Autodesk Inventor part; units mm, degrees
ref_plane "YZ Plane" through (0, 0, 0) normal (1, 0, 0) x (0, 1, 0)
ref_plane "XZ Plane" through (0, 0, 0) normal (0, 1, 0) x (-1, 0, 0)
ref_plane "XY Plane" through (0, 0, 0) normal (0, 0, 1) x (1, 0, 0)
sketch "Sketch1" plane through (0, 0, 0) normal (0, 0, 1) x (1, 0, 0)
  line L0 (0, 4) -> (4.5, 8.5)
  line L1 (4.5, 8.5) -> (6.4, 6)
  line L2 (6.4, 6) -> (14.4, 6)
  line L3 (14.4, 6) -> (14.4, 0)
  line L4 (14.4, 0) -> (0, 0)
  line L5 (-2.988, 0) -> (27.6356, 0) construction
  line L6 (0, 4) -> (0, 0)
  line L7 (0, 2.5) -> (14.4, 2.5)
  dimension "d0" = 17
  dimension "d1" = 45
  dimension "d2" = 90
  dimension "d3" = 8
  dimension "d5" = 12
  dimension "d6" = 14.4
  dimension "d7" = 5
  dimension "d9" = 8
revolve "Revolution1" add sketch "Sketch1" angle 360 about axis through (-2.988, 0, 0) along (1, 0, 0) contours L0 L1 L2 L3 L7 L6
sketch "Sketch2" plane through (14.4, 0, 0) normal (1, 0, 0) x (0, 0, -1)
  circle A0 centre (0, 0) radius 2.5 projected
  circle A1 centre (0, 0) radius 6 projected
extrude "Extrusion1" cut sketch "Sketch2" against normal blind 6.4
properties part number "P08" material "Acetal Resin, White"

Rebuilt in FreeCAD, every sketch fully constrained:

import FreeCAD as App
import Part
import Sketcher

V = App.Vector
Q = App.Units.Quantity


def add_polygon(sketch, points):
    """Adds a closed chain of lines whose ends are joined by coincident constraints."""
    first, n = sketch.GeometryCount, len(points)
    for a, b in zip(points, points[1:] + points[:1]):
        sketch.addGeometry(Part.LineSegment(App.Vector(*a, 0), App.Vector(*b, 0)), False)
    for i in range(n):
        sketch.addConstraint(Sketcher.Constraint("Coincident", first + i, 2, first + (i + 1) % n, 1))

doc = App.newDocument("Part")
body = doc.addObject("PartDesign::Body", "Body")

# Sketch on XY plane
sketch1 = doc.addObject("Sketcher::SketchObject", "Sketch")
body.addObject(sketch1)
sketch1.AttachmentSupport = (doc.XY_Plane, [""])
sketch1.MapMode = "FlatFace"
add_polygon(sketch1, [(4.5, 8.5), (0, 4), (0, 2.5), (14.4, 2.5), (14.4, 6), (6.4, 6)])  # lines 0-5
sketch1.addConstraint([
    Sketcher.Constraint("Vertical", 1),
    Sketcher.Constraint("Horizontal", 2),
    Sketcher.Constraint("Vertical", 3),
    Sketcher.Constraint("Horizontal", 4),
    Sketcher.Constraint("PointOnObject", 0, 2, -2),
    Sketcher.Constraint("DistanceX", 4, 2, 4, 1, 8.0),
    Sketcher.Constraint("DistanceX", 2, 1, 2, 2, 14.4),
    Sketcher.Constraint("Angle", 0, Q("-135 deg")),
    Sketcher.Constraint("DistanceY", 1, 2, 1, 1, 1.5),
    Sketcher.Constraint("DistanceY", 3, 1, 3, 2, 3.5),
    Sketcher.Constraint("DistanceY", -1, 1, 0, 2, 4.0),
    Sketcher.Constraint("DistanceY", 1, 2, 5, 2, 6.0),
])
revolution = doc.addObject("PartDesign::Revolution", "Revolution")
body.addObject(revolution)
revolution.Profile = sketch1
revolution.ReferenceAxis = (sketch1, ["H_Axis"])
revolution.Angle = 360

# Sketch on YZ plane
sketch2 = doc.addObject("Sketcher::SketchObject", "Sketch001")
body.addObject(sketch2)
sketch2.AttachmentSupport = (doc.YZ_Plane, [""])
sketch2.MapMode = "FlatFace"
sketch2.AttachmentOffset = App.Placement(V(0, 0, 14.4), App.Rotation())
sketch2.addGeometry([
    Part.Circle(V(0, 0, 0), V(0, 0, 1), 6),
    Part.Circle(V(0, 0, 0), V(0, 0, 1), 2.5),
], False)
sketch2.addConstraint([
    Sketcher.Constraint("Coincident", 0, 3, -1, 1),
    Sketcher.Constraint("Coincident", 1, 3, -1, 1),
    Sketcher.Constraint("Diameter", 0, 12.0),
    Sketcher.Constraint("Diameter", 1, 5.0),
])
pocket1 = doc.addObject("PartDesign::Pocket", "Pocket")
body.addObject(pocket1)
pocket1.Profile = sketch2
pocket1.Length = 6.4

doc.recompute()
